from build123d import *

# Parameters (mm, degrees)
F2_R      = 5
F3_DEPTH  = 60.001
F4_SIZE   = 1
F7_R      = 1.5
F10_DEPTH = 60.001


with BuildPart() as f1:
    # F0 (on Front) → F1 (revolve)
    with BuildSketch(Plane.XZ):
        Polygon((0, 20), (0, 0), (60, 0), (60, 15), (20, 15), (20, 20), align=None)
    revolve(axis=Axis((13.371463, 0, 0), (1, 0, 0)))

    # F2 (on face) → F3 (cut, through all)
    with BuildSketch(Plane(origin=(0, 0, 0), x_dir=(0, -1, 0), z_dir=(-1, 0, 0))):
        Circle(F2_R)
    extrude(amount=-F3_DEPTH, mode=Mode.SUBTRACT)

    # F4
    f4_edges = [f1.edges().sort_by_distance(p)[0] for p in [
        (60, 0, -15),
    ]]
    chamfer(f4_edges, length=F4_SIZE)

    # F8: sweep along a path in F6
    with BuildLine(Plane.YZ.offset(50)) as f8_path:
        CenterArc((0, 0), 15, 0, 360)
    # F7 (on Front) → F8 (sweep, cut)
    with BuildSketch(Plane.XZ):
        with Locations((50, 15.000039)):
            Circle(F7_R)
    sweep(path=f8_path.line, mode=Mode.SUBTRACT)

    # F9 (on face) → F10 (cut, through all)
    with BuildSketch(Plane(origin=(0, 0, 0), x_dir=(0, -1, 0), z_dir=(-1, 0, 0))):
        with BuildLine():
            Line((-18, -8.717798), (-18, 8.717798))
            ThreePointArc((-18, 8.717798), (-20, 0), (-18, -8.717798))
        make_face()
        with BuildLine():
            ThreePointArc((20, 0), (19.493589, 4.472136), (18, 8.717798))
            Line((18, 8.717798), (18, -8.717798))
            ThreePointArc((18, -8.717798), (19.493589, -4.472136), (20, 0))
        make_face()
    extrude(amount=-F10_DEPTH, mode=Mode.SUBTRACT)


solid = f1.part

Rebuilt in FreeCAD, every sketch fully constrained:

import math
import FreeCAD as App
import Part
import Sketcher
Q = App.Units.Quantity


def edges_at(feature, points):
    """Names of the edges that pass closest to the given points."""
    edges = feature.Shape.Edges
    near = lambda p: min(range(len(edges)), key=lambda i: edges[i].distToShape(Part.Vertex(*p))[0])
    return sorted({f"Edge{near(p) + 1}" for p in points})


def add_polygon(sketch, points):
    """Adds a closed chain of lines whose ends are joined by coincident constraints."""
    first, n = sketch.GeometryCount, len(points)
    for a, b in zip(points, points[1:] + points[:1]):
        sketch.addGeometry(Part.LineSegment(App.Vector(*a, 0), App.Vector(*b, 0)), False)
    for i in range(n):
        sketch.addConstraint(Sketcher.Constraint("Coincident", first + i, 2, first + (i + 1) % n, 1))

doc = App.newDocument("Part")
body = doc.addObject("PartDesign::Body", "Body")

sketch1 = doc.addObject("Sketcher::SketchObject", "Sketch")
body.addObject(sketch1)
sketch1.AttachmentSupport = (doc.XZ_Plane, [""])
sketch1.MapMode = "FlatFace"
add_polygon(sketch1, [(0, 20), (0, 0), (60, 0), (60, 15), (20, 15), (20, 20)])
sketch1.addConstraint([
    Sketcher.Constraint("Vertical", 0),
    Sketcher.Constraint("Horizontal", 1),
    Sketcher.Constraint("Vertical", 2),
    Sketcher.Constraint("Horizontal", 3),
    Sketcher.Constraint("Vertical", 4),
    Sketcher.Constraint("Horizontal", 5),
    Sketcher.Constraint("Coincident", 0, 2, -1, 1),
    Sketcher.Constraint("Equal", 5, 0),
    Sketcher.Constraint("DistanceX", 1, 1, 1, 2, Q("60 mm")),
    Sketcher.Constraint("DistanceX", 3, 2, 3, 1, Q("40 mm")),
    Sketcher.Constraint("DistanceY", 2, 1, 2, 2, Q("15 mm")),
])
revolution = doc.addObject("PartDesign::Revolution", "Revolution")
body.addObject(revolution)
revolution.Profile = sketch1
revolution.ReferenceAxis = (sketch1, ["H_Axis"])
revolution.Angle = 360

sketch2 = doc.addObject("Sketcher::SketchObject", "Sketch001")
body.addObject(sketch2)
sketch2.AttachmentSupport = (doc.YZ_Plane, [""])
sketch2.MapMode = "FlatFace"
sketch2.addGeometry(Part.Circle(App.Vector(0, 0, 0), App.Vector(0, 0, 1), 5), False)
sketch2.addConstraint([
    Sketcher.Constraint("Coincident", 0, 3, -1, 1),
    Sketcher.Constraint("Diameter", 0, Q("10 mm")),
])
pocket1 = doc.addObject("PartDesign::Pocket", "Pocket")
body.addObject(pocket1)
pocket1.Profile = sketch2
pocket1.Type = "ThroughAll"
pocket1.Reversed = True
doc.recompute()

chamfer = doc.addObject("PartDesign::Chamfer", "Chamfer")
body.addObject(chamfer)
chamfer.Base = (pocket1, edges_at(pocket1, [(60, 0, -15)]))
chamfer.Size = 1

sketch3 = doc.addObject("Sketcher::SketchObject", "Sketch002")
body.addObject(sketch3)
sketch3.AttachmentSupport = (doc.XZ_Plane, [""])
sketch3.MapMode = "FlatFace"
sketch3.addGeometry(Part.Circle(App.Vector(50, 15.000039, 0), App.Vector(0, 0, 1), 1.5), False)
sketch3.addConstraint([
    Sketcher.Constraint("Diameter", 0, Q("3 mm")),
    Sketcher.Constraint("DistanceX", -1, 1, 0, 3, Q("50 mm")),
    Sketcher.Constraint("DistanceY", -1, 1, 0, 3, Q("15.000039 mm")),
])

sketch4 = doc.addObject("Sketcher::SketchObject", "Sketch003")
body.addObject(sketch4)
sketch4.AttachmentSupport = (doc.YZ_Plane, [""])
sketch4.MapMode = "FlatFace"
sketch4.AttachmentOffset = App.Placement(App.Vector(0, 0, 50), App.Rotation())
sketch4.addGeometry(Part.Circle(App.Vector(0, 0, 0), App.Vector(0, 0, 1), 15), False)
sketch4.addConstraint([
    Sketcher.Constraint("Coincident", 0, 3, -1, 1),
    Sketcher.Constraint("Diameter", 0, Q("30 mm")),
])
doc.recompute()

subtractivepipe = doc.addObject("PartDesign::SubtractivePipe", "SubtractivePipe")
body.addObject(subtractivepipe)
subtractivepipe.Profile = sketch3
subtractivepipe.Spine = (sketch4, ["Edge1"])

sketch5 = doc.addObject("Sketcher::SketchObject", "Sketch004")
body.addObject(sketch5)
sketch5.AttachmentSupport = (doc.YZ_Plane, [""])
sketch5.MapMode = "FlatFace"
sketch5.addGeometry([
    Part.LineSegment(App.Vector(18, -9, 0), App.Vector(18, 9, 0)),
    Part.ArcOfCircle(Part.Circle(App.Vector(0, 0, 0), App.Vector(0, 0, 1), 20), math.radians(-26), math.radians(26)),
    Part.ArcOfCircle(Part.Circle(App.Vector(0, 0, 0), App.Vector(0, 0, 1), 20), math.radians(154), math.radians(180)),
    Part.LineSegment(App.Vector(-18, 9, 0), App.Vector(-18, -9, 0)),
    Part.ArcOfCircle(Part.Circle(App.Vector(0, 0, 0), App.Vector(0, 0, 1), 20), math.radians(180), math.radians(206)),
], False)
sketch5.addConstraint([
    Sketcher.Constraint("Coincident", 0, 1, 1, 1),
    Sketcher.Constraint("Coincident", 1, 2, 0, 2),
    Sketcher.Constraint("Coincident", 2, 1, 3, 1),
    Sketcher.Constraint("Coincident", 3, 2, 4, 2),
    Sketcher.Constraint("Tangent", 4, 1, 2, 2),
    Sketcher.Constraint("Vertical", 0),
    Sketcher.Constraint("Vertical", 3),
    Sketcher.Constraint("Coincident", 1, 3, -1, 1),
    Sketcher.Constraint("Equal", 2, 4),
    Sketcher.Constraint("Symmetric", 0, 1, 2, 1, -1, 1),
    Sketcher.Constraint("PointOnObject", 4, 1, -1),
    Sketcher.Constraint("Horizontal", 0, 1, 3, 2),
    Sketcher.Constraint("Radius", 1, Q("20 mm")),
    Sketcher.Constraint("DistanceX", -1, 1, 0, 1, Q("18 mm")),
    Sketcher.Constraint("DistanceX", 4, 1, -1, 1, Q("20 mm")),
])
pocket2 = doc.addObject("PartDesign::Pocket", "Pocket001")
body.addObject(pocket2)
pocket2.Profile = sketch5
pocket2.Type = "ThroughAll"
pocket2.Reversed = True

doc.recompute()
